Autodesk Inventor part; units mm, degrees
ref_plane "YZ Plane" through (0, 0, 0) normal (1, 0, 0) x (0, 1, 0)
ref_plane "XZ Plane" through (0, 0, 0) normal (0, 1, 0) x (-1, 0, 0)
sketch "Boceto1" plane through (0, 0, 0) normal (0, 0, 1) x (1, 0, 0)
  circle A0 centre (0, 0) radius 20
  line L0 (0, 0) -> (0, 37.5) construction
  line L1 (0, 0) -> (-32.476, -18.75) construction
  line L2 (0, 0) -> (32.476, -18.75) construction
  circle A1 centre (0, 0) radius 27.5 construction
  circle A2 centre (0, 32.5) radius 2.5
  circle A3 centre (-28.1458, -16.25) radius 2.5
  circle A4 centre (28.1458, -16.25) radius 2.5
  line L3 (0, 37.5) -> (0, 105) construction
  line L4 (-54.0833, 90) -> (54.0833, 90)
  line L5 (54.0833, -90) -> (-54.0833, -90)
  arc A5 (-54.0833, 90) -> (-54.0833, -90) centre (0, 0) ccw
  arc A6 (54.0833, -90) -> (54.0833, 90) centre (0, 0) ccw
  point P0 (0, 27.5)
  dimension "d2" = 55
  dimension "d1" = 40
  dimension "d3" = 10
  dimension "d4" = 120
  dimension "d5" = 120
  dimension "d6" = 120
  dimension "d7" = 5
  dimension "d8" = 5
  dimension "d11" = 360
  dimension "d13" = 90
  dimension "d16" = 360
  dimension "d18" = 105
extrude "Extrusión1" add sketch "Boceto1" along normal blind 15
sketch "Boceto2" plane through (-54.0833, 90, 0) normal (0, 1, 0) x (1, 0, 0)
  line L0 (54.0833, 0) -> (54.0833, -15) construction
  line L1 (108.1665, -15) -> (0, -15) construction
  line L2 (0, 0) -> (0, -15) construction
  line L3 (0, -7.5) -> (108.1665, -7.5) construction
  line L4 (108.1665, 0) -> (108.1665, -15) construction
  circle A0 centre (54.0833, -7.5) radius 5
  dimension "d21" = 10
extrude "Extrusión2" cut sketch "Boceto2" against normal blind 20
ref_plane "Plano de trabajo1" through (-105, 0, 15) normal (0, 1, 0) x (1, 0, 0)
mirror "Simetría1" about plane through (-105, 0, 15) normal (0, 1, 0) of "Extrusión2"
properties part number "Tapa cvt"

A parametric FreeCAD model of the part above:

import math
import FreeCAD as App
import Part
import Sketcher

V = App.Vector
Q = App.Units.Quantity

doc = App.newDocument("Part")
body = doc.addObject("PartDesign::Body", "Body")

# Sketch on XY plane
sketch1 = body.newObject("Sketcher::SketchObject", "Sketch")
sketch1.AttachmentSupport = (doc.getObject("XY_Plane"), [""])
sketch1.MapMode = "FlatFace"
sketch1.addGeometry([
    Part.LineSegment(V(54.1, 90, 0), V(-54.1, 90, 0)),  # 0
    Part.ArcOfCircle(Part.Circle(V(0, 0, 0), V(0, 0, 1), 105), math.radians(121), math.radians(239)),  # 1
    Part.LineSegment(V(-54.1, -90, 0), V(54.1, -90, 0)),  # 2
    Part.ArcOfCircle(Part.Circle(V(0, 0, 0), V(0, 0, 1), 105), math.radians(-59), math.radians(59)),  # 3
    Part.Circle(V(-28.1, -16.2, 0), V(0, 0, 1), 2.5),  # 4
    Part.Circle(V(28.1, -16.2, 0), V(0, 0, 1), 2.5),  # 5
    Part.Circle(V(0, 0, 0), V(0, 0, 1), 20),  # 6
    Part.Circle(V(0, 32.5, 0), V(0, 0, 1), 2.5),  # 7
], False)
sketch1.addConstraint([
    Sketcher.Constraint("Coincident", 0, 2, 1, 1),
    Sketcher.Constraint("Coincident", 1, 2, 2, 1),
    Sketcher.Constraint("Coincident", 2, 2, 3, 1),
    Sketcher.Constraint("Coincident", 3, 2, 0, 1),
    Sketcher.Constraint("Horizontal", 0),
    Sketcher.Constraint("Horizontal", 2),
    Sketcher.Constraint("Coincident", 1, 3, -1, 1),
    Sketcher.Constraint("Coincident", 3, 3, -1, 1),
    Sketcher.Constraint("Coincident", 6, 3, -1, 1),
    Sketcher.Constraint("Equal", 1, 3),
    Sketcher.Constraint("Equal", 4, 5),
    Sketcher.Constraint("Equal", 5, 7),
    Sketcher.Constraint("Symmetric", 4, 3, 5, 3, -2),
    Sketcher.Constraint("PointOnObject", 7, 3, -2),
    Sketcher.Constraint("Vertical", 0, 2, 1, 2),
    Sketcher.Constraint("Diameter", 4, Q("5 mm")),
    Sketcher.Constraint("Diameter", 6, Q("40 mm")),
    Sketcher.Constraint("Radius", 1, Q("105 mm")),
    Sketcher.Constraint("DistanceY", -1, 1, 0, 2, Q("90 mm")),
    Sketcher.Constraint("DistanceY", -1, 1, 7, 3, Q("32.5 mm")),
    Sketcher.Constraint("DistanceY", 4, 3, -1, 1, Q("16.25 mm")),
    Sketcher.Constraint("DistanceX", 1, 2, 5, 3, Q("82.229 mm")),
])
pad1 = body.newObject("PartDesign::Pad", "Pad")
pad1.Profile = sketch1
pad1.Length = 15

# Sketch on XZ plane
sketch2 = body.newObject("Sketcher::SketchObject", "Sketch001")
sketch2.AttachmentSupport = (doc.getObject("XZ_Plane"), [""])
sketch2.MapMode = "FlatFace"
sketch2.AttachmentOffset = App.Placement(V(0, 0, -90), App.Rotation())
sketch2.addGeometry(Part.Circle(V(0, 8, 0), V(0, 0, 1), 5), False)
sketch2.addConstraint([
    Sketcher.Constraint("PointOnObject", 0, 3, -2),
    Sketcher.Constraint("Diameter", 0, Q("10 mm")),
    Sketcher.Constraint("DistanceY", -1, 1, 0, 3, Q("7.5 mm")),
])
pocket1 = body.newObject("PartDesign::Pocket", "Pocket")
pocket1.Profile = sketch2
pocket1.Length = 20
pocket1.Reversed = True
doc.recompute()

mirrored = body.newObject("PartDesign::Mirrored", "Mirrored")
mirrored.Originals = [pocket1]
mirrored.MirrorPlane = (doc.getObject("XZ_Plane"), [""])
body.Tip = mirrored

doc.recompute()
